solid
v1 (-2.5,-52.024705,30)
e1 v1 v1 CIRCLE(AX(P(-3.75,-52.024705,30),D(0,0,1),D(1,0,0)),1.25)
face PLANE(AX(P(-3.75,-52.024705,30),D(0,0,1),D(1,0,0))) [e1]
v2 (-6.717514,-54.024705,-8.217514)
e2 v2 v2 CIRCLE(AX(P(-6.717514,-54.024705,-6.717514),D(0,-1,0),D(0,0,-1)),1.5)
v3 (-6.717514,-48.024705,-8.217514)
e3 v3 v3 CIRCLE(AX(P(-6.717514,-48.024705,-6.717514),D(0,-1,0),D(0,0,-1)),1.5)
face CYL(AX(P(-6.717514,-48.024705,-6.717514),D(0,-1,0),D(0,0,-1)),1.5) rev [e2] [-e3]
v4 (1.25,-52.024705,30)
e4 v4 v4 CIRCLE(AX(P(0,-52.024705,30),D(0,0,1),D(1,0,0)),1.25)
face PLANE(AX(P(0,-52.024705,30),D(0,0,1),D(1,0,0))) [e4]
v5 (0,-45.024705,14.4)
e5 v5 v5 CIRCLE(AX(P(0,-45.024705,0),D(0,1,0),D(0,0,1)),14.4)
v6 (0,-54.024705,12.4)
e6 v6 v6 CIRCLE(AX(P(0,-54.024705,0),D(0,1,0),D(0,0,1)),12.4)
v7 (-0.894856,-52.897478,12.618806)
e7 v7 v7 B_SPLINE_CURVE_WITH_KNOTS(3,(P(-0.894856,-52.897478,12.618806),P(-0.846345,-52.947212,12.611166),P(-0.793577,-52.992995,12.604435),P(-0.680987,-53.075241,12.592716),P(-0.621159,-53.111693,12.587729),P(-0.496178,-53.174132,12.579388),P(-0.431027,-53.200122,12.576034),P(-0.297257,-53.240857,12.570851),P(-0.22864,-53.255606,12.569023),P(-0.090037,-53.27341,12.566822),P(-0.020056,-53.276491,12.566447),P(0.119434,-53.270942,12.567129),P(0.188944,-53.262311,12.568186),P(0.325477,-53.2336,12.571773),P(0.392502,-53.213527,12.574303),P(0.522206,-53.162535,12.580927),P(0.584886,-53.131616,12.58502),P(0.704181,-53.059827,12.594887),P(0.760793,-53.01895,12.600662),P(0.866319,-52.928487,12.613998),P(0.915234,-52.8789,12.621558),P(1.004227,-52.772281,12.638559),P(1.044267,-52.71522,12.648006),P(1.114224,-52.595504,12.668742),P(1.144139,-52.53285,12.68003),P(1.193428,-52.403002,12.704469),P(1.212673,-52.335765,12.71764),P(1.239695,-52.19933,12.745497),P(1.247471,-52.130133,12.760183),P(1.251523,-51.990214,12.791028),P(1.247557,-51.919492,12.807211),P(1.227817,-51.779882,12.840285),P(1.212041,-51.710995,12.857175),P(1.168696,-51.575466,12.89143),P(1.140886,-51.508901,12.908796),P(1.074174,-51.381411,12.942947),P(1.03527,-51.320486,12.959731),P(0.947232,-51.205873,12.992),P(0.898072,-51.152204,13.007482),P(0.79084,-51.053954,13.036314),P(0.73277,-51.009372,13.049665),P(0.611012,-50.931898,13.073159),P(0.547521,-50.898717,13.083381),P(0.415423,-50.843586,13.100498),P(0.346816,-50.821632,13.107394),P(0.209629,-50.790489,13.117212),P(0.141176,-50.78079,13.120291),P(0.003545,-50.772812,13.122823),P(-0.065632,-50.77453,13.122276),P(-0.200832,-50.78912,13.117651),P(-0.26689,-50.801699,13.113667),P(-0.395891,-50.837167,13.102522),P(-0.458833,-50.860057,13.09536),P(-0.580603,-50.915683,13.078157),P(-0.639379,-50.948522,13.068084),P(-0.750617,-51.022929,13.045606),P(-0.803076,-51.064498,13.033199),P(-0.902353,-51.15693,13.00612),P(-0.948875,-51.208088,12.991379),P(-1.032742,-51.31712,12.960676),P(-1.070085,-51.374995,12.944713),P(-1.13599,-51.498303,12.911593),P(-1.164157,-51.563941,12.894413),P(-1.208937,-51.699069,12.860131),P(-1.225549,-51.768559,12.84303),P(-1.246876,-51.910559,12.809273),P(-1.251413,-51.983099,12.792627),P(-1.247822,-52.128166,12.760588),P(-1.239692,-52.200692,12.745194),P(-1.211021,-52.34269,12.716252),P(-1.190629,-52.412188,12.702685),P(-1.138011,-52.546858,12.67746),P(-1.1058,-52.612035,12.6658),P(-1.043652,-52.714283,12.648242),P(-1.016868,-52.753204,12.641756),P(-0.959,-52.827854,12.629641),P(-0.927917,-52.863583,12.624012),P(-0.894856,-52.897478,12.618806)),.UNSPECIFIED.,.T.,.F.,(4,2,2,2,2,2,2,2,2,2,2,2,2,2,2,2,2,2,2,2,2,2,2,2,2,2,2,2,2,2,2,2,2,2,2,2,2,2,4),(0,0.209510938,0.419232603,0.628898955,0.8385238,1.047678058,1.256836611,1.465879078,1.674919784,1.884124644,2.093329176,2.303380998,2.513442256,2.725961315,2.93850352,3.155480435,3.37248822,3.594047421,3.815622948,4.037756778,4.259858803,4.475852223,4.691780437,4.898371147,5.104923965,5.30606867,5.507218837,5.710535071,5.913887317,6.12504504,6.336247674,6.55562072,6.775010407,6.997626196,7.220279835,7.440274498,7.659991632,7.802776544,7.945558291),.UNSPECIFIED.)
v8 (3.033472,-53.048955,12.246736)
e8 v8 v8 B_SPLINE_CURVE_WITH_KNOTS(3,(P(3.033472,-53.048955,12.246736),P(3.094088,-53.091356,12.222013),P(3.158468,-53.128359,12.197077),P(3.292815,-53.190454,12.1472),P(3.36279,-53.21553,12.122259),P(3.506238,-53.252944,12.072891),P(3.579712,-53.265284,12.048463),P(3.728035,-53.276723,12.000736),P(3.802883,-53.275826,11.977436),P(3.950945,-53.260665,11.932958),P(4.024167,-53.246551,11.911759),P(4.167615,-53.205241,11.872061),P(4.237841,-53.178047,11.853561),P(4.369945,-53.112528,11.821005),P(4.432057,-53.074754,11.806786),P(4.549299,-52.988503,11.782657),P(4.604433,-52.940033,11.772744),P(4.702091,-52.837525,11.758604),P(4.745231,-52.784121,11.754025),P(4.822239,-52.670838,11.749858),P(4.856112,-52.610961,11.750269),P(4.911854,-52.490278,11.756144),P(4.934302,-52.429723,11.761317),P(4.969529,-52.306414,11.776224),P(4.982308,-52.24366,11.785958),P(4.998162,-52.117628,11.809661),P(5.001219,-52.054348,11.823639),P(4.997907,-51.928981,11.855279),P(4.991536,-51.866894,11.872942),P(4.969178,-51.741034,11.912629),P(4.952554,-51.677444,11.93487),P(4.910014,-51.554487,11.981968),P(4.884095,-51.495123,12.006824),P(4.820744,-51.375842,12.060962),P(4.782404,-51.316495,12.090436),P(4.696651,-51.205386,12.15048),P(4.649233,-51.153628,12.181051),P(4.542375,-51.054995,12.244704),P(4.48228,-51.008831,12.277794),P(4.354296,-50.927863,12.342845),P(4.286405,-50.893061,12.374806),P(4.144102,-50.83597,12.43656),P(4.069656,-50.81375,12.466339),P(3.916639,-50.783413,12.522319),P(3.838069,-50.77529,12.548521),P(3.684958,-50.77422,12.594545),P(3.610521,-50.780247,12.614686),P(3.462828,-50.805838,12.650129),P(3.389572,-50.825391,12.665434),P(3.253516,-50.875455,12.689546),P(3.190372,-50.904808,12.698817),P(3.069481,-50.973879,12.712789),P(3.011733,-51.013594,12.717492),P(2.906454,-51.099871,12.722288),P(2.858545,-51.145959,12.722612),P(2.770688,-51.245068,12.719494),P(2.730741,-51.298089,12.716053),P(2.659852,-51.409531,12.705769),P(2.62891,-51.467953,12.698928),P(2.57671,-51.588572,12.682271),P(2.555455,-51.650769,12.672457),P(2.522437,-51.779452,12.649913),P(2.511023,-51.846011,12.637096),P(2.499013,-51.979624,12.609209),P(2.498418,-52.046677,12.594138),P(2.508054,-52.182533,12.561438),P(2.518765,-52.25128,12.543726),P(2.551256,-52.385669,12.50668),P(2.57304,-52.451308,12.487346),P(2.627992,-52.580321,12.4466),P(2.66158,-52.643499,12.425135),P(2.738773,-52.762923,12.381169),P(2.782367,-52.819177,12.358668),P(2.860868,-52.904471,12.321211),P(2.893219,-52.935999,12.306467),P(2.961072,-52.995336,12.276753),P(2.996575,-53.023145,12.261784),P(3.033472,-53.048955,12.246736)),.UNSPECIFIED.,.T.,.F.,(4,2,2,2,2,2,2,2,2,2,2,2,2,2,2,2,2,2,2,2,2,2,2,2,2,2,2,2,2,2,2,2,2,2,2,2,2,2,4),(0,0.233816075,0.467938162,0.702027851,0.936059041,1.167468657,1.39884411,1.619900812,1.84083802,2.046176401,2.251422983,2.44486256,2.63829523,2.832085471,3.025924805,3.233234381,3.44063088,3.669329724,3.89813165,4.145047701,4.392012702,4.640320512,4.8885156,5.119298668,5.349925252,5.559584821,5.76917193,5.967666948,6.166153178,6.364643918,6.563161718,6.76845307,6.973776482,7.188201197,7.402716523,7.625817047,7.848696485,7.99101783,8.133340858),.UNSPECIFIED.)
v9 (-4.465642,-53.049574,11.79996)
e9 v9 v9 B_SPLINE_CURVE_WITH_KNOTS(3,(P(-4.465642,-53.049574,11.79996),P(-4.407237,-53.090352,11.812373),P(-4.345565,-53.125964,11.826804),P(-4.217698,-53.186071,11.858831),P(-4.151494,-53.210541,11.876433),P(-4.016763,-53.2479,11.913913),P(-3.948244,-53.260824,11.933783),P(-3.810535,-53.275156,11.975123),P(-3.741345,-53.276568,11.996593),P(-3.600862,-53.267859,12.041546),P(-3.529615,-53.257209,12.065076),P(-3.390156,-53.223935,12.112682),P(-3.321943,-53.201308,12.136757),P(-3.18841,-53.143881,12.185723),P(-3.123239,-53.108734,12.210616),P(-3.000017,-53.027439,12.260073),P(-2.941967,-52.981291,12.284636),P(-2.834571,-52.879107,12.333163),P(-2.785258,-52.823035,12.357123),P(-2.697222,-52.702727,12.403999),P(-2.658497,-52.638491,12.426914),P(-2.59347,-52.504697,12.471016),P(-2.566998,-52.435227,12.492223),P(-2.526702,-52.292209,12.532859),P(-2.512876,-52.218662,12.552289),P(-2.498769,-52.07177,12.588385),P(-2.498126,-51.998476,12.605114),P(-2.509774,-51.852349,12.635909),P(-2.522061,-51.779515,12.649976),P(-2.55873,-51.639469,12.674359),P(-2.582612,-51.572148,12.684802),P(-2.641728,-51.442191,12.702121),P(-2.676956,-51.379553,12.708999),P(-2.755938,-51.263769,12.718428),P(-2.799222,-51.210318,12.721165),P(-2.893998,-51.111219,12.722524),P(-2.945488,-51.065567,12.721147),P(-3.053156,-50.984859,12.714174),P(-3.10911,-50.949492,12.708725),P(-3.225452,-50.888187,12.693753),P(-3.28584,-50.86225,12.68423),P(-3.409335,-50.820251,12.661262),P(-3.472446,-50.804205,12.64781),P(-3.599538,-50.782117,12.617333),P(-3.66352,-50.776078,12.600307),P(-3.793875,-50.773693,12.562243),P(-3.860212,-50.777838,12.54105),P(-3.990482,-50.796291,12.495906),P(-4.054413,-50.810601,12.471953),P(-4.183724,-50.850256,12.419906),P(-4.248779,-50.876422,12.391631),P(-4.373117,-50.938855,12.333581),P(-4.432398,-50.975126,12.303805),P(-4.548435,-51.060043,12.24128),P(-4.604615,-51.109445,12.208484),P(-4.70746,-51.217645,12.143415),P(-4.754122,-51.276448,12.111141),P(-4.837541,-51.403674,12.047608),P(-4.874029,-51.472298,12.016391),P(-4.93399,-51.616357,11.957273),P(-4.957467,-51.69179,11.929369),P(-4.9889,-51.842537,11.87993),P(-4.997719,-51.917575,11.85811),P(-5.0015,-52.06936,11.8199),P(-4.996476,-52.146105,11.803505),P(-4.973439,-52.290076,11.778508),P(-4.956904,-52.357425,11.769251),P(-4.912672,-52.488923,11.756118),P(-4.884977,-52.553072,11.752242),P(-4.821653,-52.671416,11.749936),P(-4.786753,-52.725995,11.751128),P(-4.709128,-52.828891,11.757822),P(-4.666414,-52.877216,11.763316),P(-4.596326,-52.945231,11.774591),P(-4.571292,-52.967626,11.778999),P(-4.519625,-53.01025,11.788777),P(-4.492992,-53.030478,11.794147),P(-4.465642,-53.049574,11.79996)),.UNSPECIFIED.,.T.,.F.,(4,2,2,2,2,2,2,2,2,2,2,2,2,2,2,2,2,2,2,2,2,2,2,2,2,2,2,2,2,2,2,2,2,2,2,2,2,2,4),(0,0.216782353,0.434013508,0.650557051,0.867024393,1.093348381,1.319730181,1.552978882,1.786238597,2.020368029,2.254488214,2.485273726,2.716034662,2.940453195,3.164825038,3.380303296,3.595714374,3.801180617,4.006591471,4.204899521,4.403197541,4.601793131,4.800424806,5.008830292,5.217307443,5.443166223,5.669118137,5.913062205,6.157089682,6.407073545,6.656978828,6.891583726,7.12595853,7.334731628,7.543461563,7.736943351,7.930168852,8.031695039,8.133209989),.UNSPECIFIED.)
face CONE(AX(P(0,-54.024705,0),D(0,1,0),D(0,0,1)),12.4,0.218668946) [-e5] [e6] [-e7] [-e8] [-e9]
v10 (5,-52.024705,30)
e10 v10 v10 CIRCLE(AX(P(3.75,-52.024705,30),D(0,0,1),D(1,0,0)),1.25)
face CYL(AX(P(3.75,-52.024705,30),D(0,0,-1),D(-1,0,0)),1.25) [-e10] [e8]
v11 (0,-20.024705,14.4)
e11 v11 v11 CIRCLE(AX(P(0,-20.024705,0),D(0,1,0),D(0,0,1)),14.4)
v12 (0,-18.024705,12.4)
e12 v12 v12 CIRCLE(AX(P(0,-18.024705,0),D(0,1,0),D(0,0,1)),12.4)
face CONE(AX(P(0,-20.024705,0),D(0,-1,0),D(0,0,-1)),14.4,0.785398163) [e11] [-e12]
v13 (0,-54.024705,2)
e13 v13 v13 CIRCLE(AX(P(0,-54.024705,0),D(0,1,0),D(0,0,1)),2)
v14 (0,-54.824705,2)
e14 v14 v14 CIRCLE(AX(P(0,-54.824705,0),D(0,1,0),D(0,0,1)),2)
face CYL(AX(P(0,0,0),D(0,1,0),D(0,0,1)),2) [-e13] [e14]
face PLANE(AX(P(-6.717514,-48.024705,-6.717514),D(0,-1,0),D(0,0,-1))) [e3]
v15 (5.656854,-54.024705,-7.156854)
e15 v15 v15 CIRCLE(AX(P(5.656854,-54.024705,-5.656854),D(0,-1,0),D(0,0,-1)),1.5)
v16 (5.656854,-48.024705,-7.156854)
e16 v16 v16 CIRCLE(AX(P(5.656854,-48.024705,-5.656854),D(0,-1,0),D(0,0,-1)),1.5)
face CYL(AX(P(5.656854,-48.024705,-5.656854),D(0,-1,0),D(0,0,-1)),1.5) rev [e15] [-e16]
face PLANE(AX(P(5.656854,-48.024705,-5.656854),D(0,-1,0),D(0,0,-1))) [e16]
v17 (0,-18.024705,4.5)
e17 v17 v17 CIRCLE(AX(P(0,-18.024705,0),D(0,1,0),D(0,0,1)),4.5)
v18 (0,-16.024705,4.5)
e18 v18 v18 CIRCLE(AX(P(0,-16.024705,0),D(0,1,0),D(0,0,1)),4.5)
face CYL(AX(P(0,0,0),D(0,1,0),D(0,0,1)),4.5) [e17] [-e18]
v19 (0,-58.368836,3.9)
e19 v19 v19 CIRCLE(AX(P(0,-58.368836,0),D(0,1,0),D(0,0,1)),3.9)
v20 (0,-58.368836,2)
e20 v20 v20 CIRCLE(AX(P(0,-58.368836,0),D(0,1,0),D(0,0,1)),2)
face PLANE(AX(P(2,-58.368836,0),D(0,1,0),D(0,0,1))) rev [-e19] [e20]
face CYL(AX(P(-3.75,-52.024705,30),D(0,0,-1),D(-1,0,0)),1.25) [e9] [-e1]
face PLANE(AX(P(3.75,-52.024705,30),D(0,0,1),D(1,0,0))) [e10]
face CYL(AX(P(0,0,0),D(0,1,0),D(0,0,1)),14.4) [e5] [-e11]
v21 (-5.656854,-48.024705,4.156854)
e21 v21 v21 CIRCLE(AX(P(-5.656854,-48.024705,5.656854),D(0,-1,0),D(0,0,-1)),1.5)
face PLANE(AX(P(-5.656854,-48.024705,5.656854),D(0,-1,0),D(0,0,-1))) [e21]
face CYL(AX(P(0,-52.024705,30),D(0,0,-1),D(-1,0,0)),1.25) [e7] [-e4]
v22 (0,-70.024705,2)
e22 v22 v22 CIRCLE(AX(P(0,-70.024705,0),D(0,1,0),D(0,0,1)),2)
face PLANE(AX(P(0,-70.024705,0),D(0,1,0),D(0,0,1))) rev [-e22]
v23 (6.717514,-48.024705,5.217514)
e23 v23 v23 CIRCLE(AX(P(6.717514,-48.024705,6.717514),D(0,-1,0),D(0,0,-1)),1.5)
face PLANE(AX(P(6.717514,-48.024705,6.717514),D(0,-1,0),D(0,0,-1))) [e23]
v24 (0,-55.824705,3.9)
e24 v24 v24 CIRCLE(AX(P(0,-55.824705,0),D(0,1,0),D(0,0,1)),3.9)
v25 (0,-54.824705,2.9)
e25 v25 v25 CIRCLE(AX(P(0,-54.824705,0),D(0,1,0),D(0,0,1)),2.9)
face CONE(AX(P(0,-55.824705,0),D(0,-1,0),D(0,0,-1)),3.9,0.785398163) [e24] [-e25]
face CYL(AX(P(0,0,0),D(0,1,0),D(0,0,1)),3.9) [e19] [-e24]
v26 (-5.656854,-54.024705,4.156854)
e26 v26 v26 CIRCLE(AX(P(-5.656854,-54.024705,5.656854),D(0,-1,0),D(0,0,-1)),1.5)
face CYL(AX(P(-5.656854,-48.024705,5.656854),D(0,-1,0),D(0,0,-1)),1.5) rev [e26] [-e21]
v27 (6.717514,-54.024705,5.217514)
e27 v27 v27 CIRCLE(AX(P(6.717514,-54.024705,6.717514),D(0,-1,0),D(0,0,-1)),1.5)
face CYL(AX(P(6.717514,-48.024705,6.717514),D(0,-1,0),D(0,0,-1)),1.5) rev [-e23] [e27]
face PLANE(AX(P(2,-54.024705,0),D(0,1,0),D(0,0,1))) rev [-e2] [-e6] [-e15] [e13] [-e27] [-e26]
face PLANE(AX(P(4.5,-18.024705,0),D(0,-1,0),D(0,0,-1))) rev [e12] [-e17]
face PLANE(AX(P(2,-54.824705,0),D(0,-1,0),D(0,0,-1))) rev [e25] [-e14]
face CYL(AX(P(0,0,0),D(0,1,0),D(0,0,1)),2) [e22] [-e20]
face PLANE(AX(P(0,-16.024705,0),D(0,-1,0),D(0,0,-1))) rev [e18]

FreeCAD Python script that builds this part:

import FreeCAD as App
import Part
import Sketcher

V = App.Vector
Q = App.Units.Quantity


def add_polygon(sketch, points):
    """Adds a closed chain of lines whose ends are joined by coincident constraints."""
    first, n = sketch.GeometryCount, len(points)
    for a, b in zip(points, points[1:] + points[:1]):
        sketch.addGeometry(Part.LineSegment(App.Vector(*a, 0), App.Vector(*b, 0)), False)
    for i in range(n):
        sketch.addConstraint(Sketcher.Constraint("Coincident", first + i, 2, first + (i + 1) % n, 1))

doc = App.newDocument("Part")
body = doc.addObject("PartDesign::Body", "Body")

sketch1 = body.newObject("Sketcher::SketchObject", "Sketch")
sketch1.AttachmentSupport = (doc.getObject("XY_Plane"), [""])
sketch1.MapMode = "FlatFace"
add_polygon(sketch1, [(14.4, -45), (14.4, -20), (12.4, -18), (4.5, -18), (4.5, -16), (0, -16), (0, -70), (2, -70), (2, -58.4), (3.9, -58.4), (3.9, -55.8), (2.9, -54.8), (2, -54.8), (2, -54), (12.4, -54)])
sketch1.addConstraint(Sketcher.Constraint("Vertical", 0))
sketch1.addConstraint(Sketcher.Constraint("Horizontal", 2))
sketch1.addConstraint(Sketcher.Constraint("Vertical", 3))
sketch1.addConstraint(Sketcher.Constraint("Horizontal", 4))
sketch1.addConstraint(Sketcher.Constraint("Vertical", 5))
sketch1.addConstraint(Sketcher.Constraint("Horizontal", 6))
sketch1.addConstraint(Sketcher.Constraint("Vertical", 7))
sketch1.addConstraint(Sketcher.Constraint("Horizontal", 8))
sketch1.addConstraint(Sketcher.Constraint("Vertical", 9))
sketch1.addConstraint(Sketcher.Constraint("Horizontal", 11))
sketch1.addConstraint(Sketcher.Constraint("Vertical", 12))
sketch1.addConstraint(Sketcher.Constraint("Horizontal", 13))
sketch1.addConstraint(Sketcher.Constraint("PointOnObject", 4, 2, -2))
sketch1.addConstraint(Sketcher.Constraint("Parallel", 1, 10))
sketch1.addConstraint(Sketcher.Constraint("Vertical", 7, 2, 11, 2))
sketch1.addConstraint(Sketcher.Constraint("Vertical", 1, 2, 13, 2))
sketch1.addConstraint(Sketcher.Constraint("Equal", 6, 3))
sketch1.addConstraint(Sketcher.Constraint("DistanceX", 6, 1, 6, 2, 2.0))
sketch1.addConstraint(Sketcher.Constraint("DistanceY", 0, 1, 0, 2, 25.0))
sketch1.addConstraint(Sketcher.Constraint("DistanceY", 5, 2, 5, 1, 54.0))
sketch1.addConstraint(Sketcher.Constraint("Angle", 1, Q("135 deg")))
sketch1.addConstraint(Sketcher.Constraint("DistanceX", 2, 2, 2, 1, 7.9))
sketch1.addConstraint(Sketcher.Constraint("DistanceX", 4, 2, 4, 1, 4.5))
sketch1.addConstraint(Sketcher.Constraint("DistanceX", 8, 1, 8, 2, 1.9))
sketch1.addConstraint(Sketcher.Constraint("DistanceX", 11, 2, 11, 1, 0.9))
sketch1.addConstraint(Sketcher.Constraint("DistanceY", 12, 1, 12, 2, 0.8))
sketch1.addConstraint(Sketcher.Constraint("DistanceX", 1, 2, 0, 2, 2.0))
sketch1.addConstraint(Sketcher.Constraint("DistanceY", 13, 2, 14, 2, 9.0))
sketch1.addConstraint(Sketcher.Constraint("DistanceY", 7, 1, 7, 2, 11.655868))
sketch1.addConstraint(Sketcher.Constraint("DistanceY", 0, 2, -1, 1, 20.024705))
revolution = body.newObject("PartDesign::Revolution", "Revolution")
revolution.Profile = sketch1
revolution.ReferenceAxis = (sketch1, ["V_Axis"])
revolution.Angle = 360

sketch2 = body.newObject("Sketcher::SketchObject", "Sketch001")
sketch2.AttachmentSupport = (doc.getObject("XZ_Plane"), [""])
sketch2.MapMode = "FlatFace"
sketch2.AttachmentOffset = App.Placement(V(0, 0, 54.024705), App.Rotation())
sketch2.addGeometry(Part.Circle(V(6.7, 6.7, 0), V(0, 0, 1), 1.5), False)
sketch2.addGeometry(Part.Circle(V(5.7, -5.7, 0), V(0, 0, 1), 1.5), False)
sketch2.addGeometry(Part.Circle(V(-6.7, -6.7, 0), V(0, 0, 1), 1.5), False)
sketch2.addGeometry(Part.Circle(V(-5.7, 5.7, 0), V(0, 0, 1), 1.5), False)
sketch2.addConstraint(Sketcher.Constraint("Equal", 0, 1))
sketch2.addConstraint(Sketcher.Constraint("Equal", 1, 2))
sketch2.addConstraint(Sketcher.Constraint("Equal", 2, 3))
sketch2.addConstraint(Sketcher.Constraint("Symmetric", 0, 3, 2, 3, -1, 1))
sketch2.addConstraint(Sketcher.Constraint("Symmetric", 1, 3, 3, 3, -1, 1))
sketch2.addConstraint(Sketcher.Constraint("Diameter", 0, 3.0))
sketch2.addConstraint(Sketcher.Constraint("DistanceX", 1, 3, 0, 3, 1.06066))
sketch2.addConstraint(Sketcher.Constraint("DistanceY", 1, 3, 0, 3, 12.374369))
sketch2.addConstraint(Sketcher.Constraint("DistanceX", 2, 3, 1, 3, 12.374369))
sketch2.addConstraint(Sketcher.Constraint("DistanceY", 2, 3, 1, 3, 1.06066))
pocket1 = body.newObject("PartDesign::Pocket", "Pocket")
pocket1.Profile = sketch2
pocket1.Length = 6

sketch3 = body.newObject("Sketcher::SketchObject", "Sketch002")
sketch3.AttachmentSupport = (doc.getObject("XY_Plane"), [""])
sketch3.MapMode = "FlatFace"
sketch3.AttachmentOffset = App.Placement(V(0, 0, 10), App.Rotation())
sketch3.addGeometry(Part.Circle(V(0, -52, 0), V(0, 0, 1), 1.2), False)
sketch3.addGeometry(Part.Circle(V(3.8, -52, 0), V(0, 0, 1), 1.2), False)
sketch3.addGeometry(Part.Circle(V(-3.8, -52, 0), V(0, 0, 1), 1.2), False)
sketch3.addConstraint(Sketcher.Constraint("Equal", 0, 1))
sketch3.addConstraint(Sketcher.Constraint("Equal", 1, 2))
sketch3.addConstraint(Sketcher.Constraint("Symmetric", 1, 3, 2, 3, -2))
sketch3.addConstraint(Sketcher.Constraint("PointOnObject", 0, 3, -2))
sketch3.addConstraint(Sketcher.Constraint("Horizontal", 0, 3, 1, 3))
sketch3.addConstraint(Sketcher.Constraint("Diameter", 0, 2.5))
sketch3.addConstraint(Sketcher.Constraint("DistanceX", 2, 3, 1, 3, 7.5))
sketch3.addConstraint(Sketcher.Constraint("DistanceY", 0, 3, -1, 1, 52.024705))
pad1 = body.newObject("PartDesign::Pad", "Pad")
pad1.Profile = sketch3
pad1.Length = 20

doc.recompute()
